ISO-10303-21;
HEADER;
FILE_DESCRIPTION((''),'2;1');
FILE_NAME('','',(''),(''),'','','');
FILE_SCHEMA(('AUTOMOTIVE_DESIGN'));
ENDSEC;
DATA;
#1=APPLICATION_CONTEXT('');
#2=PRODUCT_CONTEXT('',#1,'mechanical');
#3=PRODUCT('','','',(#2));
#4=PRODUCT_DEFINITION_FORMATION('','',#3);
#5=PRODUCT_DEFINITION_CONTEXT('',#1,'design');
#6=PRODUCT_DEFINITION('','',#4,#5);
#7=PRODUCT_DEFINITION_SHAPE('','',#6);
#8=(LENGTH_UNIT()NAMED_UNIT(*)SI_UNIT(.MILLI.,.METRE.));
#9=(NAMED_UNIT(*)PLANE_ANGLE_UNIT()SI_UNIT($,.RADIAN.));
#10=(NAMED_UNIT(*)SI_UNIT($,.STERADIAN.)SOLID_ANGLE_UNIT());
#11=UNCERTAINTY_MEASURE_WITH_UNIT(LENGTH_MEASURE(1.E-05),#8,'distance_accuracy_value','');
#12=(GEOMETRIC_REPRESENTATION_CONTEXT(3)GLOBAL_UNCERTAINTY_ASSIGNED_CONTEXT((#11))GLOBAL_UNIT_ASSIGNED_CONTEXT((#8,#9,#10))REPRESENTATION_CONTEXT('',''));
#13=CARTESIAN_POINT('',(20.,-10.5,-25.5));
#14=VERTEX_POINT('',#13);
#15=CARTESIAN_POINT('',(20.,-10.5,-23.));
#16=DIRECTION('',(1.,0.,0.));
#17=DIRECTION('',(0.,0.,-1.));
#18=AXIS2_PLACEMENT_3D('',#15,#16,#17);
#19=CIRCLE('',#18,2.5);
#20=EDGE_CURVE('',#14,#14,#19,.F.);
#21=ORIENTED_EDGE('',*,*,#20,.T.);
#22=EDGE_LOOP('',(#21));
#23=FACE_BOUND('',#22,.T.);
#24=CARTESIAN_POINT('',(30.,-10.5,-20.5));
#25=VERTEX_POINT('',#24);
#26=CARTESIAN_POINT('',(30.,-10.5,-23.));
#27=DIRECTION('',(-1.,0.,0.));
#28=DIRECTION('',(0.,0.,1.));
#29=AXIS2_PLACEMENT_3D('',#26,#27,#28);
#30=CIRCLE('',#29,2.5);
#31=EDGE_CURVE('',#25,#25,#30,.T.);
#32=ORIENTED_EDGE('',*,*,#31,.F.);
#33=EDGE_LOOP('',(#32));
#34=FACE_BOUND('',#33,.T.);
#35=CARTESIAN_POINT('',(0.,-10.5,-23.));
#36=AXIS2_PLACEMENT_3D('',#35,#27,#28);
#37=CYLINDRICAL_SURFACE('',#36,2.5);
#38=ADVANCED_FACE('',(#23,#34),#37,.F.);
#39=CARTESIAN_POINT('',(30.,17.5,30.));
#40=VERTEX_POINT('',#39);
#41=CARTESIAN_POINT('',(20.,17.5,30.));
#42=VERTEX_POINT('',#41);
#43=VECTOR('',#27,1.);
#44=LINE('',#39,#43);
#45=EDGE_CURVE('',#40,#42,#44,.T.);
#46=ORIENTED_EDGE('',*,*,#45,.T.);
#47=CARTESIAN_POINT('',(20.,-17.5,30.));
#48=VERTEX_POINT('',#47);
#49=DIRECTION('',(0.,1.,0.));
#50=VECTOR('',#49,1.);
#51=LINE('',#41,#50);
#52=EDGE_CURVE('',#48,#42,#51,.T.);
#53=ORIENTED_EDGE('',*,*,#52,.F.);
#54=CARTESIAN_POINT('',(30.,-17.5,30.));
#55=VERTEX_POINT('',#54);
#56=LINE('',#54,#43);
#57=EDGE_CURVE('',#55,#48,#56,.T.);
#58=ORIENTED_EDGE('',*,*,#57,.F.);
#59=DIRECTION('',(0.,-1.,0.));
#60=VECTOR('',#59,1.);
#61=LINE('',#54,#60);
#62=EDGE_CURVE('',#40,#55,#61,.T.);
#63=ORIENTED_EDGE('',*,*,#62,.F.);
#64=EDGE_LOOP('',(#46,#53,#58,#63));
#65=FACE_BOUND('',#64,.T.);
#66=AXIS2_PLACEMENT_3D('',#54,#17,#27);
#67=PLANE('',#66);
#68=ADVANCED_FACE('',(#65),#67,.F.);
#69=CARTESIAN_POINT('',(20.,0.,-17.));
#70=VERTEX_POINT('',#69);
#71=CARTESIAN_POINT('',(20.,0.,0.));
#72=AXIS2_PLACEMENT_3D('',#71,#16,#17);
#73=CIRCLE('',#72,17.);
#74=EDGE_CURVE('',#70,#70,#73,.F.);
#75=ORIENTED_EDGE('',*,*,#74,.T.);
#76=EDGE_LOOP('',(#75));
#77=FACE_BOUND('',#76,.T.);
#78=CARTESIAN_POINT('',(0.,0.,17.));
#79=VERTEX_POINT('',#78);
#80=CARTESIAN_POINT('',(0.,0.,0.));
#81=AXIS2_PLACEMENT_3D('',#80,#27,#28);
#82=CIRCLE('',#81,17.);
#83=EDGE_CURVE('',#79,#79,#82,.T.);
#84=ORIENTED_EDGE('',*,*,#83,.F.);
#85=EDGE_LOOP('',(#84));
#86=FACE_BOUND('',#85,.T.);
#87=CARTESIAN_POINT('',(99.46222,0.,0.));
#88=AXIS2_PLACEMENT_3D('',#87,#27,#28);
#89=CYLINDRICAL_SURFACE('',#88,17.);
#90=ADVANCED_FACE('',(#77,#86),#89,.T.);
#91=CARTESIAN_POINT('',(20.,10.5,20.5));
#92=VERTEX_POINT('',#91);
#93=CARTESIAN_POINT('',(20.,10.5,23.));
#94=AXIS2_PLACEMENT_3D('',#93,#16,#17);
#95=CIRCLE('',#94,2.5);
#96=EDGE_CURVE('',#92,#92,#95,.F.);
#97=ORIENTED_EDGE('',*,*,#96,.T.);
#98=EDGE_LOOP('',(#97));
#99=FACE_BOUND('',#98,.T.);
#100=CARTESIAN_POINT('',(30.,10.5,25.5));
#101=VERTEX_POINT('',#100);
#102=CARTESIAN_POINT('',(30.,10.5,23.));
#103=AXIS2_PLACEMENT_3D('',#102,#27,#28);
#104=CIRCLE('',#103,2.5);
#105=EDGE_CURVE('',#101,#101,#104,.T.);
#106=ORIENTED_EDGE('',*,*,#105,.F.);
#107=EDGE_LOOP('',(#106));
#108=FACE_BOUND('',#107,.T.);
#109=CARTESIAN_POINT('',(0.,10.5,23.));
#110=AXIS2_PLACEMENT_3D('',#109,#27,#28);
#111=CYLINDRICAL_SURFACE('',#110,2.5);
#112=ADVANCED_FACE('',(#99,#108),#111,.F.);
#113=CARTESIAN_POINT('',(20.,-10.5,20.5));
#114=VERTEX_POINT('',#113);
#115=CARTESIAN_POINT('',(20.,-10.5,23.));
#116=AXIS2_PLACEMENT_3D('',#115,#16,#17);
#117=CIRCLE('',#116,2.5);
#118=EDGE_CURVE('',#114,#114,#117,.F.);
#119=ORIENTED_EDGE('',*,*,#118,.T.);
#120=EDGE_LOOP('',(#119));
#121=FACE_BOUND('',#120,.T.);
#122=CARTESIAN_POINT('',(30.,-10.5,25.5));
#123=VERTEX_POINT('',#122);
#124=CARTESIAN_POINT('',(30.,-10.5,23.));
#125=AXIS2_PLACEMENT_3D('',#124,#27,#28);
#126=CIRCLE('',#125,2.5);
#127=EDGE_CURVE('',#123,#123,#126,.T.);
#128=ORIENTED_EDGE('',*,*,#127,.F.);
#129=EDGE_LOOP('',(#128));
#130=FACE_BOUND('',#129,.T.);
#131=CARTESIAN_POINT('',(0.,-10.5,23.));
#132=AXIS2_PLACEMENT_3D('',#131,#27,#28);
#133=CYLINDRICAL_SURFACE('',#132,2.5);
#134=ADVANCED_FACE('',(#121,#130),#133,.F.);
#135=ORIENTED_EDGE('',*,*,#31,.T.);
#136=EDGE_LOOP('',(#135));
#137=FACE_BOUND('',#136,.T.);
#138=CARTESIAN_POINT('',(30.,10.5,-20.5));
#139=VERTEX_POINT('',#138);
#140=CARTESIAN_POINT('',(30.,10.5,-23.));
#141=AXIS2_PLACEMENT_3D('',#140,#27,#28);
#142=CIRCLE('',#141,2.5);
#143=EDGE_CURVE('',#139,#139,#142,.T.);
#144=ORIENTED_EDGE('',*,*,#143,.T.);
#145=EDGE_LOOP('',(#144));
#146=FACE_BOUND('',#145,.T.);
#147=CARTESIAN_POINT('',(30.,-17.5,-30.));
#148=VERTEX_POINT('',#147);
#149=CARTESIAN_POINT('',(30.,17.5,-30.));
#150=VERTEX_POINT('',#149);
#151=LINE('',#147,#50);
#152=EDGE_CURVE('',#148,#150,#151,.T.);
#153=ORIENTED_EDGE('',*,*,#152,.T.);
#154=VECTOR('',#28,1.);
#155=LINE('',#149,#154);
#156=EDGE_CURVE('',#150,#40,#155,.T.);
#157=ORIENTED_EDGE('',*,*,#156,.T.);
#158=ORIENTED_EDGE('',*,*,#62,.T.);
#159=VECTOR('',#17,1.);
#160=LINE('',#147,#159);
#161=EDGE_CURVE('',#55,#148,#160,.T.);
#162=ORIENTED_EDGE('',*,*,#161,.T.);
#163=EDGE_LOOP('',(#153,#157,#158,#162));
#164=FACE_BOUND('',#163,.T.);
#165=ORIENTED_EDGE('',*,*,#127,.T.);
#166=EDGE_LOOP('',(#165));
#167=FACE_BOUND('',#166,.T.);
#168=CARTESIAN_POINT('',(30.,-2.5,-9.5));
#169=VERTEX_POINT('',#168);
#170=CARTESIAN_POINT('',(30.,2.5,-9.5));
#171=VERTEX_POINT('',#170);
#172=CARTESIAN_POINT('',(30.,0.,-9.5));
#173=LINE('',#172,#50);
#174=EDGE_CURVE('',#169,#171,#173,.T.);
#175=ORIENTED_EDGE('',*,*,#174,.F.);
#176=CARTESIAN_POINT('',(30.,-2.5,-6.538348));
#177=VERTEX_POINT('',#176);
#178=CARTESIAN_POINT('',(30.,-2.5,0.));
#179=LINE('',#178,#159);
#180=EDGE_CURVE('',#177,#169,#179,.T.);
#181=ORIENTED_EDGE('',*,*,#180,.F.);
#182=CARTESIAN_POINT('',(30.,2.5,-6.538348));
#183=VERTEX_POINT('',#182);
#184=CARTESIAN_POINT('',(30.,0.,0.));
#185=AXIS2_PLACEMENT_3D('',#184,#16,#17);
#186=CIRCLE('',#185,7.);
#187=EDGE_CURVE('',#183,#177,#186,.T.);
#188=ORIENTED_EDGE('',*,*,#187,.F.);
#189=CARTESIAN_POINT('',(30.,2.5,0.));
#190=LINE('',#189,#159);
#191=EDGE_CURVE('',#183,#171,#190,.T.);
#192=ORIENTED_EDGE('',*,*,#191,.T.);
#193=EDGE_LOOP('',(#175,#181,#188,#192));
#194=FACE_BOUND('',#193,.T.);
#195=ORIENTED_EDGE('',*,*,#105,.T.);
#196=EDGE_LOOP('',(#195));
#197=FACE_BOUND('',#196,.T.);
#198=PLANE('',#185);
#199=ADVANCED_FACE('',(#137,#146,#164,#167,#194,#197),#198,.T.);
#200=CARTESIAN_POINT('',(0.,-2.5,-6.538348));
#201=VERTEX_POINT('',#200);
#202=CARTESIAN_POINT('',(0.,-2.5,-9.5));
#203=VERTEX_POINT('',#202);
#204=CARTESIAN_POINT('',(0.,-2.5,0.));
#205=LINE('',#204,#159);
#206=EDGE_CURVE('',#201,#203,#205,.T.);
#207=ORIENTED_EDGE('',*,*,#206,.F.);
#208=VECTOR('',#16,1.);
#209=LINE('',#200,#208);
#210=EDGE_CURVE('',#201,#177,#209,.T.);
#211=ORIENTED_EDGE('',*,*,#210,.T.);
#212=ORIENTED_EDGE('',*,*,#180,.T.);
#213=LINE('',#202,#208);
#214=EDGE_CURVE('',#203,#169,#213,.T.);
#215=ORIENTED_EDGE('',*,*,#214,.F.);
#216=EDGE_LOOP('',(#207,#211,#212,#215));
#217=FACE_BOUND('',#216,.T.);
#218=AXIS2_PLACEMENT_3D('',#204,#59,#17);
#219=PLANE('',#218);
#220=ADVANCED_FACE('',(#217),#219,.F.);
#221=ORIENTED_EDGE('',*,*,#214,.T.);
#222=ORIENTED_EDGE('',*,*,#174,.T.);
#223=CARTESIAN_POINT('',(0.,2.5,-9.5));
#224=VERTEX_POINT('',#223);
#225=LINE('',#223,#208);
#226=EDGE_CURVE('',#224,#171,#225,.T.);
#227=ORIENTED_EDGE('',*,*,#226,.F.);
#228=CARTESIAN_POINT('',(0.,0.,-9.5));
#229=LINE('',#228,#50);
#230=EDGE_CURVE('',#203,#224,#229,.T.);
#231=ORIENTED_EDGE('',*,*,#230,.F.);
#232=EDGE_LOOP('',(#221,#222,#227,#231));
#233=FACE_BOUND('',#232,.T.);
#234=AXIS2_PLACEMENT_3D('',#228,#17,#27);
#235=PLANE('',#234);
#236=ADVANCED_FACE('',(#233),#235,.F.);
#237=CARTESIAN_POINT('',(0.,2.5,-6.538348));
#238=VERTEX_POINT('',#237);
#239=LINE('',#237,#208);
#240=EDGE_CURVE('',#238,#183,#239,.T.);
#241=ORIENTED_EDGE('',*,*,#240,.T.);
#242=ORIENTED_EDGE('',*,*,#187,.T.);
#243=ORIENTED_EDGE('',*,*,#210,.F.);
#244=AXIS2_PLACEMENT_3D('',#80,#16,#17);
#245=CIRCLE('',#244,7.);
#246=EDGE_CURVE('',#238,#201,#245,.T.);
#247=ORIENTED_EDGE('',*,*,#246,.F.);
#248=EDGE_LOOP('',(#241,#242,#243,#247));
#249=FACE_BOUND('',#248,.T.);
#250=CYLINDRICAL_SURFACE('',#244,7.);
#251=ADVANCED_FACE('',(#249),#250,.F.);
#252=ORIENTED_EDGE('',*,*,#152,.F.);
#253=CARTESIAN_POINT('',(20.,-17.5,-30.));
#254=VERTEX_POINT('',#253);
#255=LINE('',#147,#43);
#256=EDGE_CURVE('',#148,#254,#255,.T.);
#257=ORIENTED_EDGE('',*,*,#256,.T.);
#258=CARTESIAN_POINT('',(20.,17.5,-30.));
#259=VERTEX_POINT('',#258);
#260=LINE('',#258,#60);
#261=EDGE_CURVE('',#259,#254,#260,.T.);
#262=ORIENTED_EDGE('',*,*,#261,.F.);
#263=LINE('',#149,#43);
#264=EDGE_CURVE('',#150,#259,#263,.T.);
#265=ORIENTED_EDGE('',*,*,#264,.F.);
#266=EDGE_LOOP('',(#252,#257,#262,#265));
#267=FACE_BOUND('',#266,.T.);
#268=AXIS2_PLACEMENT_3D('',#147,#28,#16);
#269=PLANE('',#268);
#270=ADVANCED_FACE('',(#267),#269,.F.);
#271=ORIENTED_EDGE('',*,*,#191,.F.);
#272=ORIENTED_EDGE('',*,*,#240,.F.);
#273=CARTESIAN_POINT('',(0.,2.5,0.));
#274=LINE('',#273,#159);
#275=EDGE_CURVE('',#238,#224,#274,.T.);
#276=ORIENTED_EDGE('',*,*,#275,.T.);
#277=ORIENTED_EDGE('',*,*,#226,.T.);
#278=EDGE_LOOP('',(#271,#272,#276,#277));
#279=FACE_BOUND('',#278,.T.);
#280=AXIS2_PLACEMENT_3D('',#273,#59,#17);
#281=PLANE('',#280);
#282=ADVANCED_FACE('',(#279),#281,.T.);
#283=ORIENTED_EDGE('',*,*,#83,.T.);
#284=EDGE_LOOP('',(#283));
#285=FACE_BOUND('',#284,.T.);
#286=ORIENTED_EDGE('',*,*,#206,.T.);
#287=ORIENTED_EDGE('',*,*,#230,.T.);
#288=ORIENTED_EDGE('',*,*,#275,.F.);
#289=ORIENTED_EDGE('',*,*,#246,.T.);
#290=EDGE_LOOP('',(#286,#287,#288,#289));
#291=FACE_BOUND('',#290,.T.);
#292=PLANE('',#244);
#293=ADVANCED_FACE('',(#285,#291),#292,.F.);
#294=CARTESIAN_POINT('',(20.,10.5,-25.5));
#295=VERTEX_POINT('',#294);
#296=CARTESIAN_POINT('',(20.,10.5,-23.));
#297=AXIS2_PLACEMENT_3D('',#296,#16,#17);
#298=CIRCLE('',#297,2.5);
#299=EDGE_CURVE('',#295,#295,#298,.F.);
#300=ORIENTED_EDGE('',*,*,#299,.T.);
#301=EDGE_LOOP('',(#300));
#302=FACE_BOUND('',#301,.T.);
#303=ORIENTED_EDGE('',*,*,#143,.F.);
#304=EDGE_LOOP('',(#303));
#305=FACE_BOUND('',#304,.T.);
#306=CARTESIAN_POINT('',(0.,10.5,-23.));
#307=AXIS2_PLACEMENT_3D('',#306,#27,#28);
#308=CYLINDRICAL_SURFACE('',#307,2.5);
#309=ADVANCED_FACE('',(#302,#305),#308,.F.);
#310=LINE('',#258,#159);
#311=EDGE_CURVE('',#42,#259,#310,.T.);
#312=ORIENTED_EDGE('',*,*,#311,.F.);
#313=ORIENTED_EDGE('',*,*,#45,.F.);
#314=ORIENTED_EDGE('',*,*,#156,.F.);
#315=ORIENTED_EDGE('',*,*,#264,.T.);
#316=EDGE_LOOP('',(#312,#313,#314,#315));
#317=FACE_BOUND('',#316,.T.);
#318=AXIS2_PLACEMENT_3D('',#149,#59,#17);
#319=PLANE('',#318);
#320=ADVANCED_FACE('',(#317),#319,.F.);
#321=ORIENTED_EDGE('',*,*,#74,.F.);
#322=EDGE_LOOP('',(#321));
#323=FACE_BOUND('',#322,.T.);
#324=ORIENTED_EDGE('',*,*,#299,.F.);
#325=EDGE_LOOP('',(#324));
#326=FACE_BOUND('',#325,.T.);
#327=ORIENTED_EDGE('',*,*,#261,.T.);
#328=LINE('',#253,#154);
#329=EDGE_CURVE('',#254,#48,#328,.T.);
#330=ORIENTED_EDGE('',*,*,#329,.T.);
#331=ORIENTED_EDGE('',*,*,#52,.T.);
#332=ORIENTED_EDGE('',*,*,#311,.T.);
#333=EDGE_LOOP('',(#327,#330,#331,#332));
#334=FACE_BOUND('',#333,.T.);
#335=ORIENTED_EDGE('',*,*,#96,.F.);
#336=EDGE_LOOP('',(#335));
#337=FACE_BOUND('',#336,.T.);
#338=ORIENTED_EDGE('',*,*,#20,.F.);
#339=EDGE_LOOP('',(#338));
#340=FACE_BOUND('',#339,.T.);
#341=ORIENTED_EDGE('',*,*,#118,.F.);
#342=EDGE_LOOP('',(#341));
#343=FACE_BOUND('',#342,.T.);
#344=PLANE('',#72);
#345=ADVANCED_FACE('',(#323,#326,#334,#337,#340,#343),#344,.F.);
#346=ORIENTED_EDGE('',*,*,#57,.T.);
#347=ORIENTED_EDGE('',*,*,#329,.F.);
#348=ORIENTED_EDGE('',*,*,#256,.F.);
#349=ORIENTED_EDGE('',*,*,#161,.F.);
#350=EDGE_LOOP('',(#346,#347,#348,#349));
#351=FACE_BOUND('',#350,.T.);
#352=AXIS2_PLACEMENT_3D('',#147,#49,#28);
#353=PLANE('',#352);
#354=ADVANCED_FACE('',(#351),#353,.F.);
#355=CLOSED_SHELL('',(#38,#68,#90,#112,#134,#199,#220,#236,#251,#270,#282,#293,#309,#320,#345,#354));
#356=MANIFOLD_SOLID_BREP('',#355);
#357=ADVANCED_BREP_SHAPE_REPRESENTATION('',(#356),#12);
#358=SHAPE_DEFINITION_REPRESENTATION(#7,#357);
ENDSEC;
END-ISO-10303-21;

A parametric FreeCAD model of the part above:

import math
import FreeCAD as App
import Part
import Sketcher
from FreeCAD import Vector
Q = App.Units.Quantity


def add_polygon(sketch, points):
    """Adds a closed chain of lines whose ends are joined by coincident constraints."""
    first, n = sketch.GeometryCount, len(points)
    for a, b in zip(points, points[1:] + points[:1]):
        sketch.addGeometry(Part.LineSegment(App.Vector(*a, 0), App.Vector(*b, 0)), False)
    for i in range(n):
        sketch.addConstraint(Sketcher.Constraint("Coincident", first + i, 2, first + (i + 1) % n, 1))

doc = App.newDocument("Part")
body = doc.addObject("PartDesign::Body", "Body")

# Sketch on YZ plane
sketch1 = doc.addObject("Sketcher::SketchObject", "Sketch")
body.addObject(sketch1)
sketch1.AttachmentSupport = (doc.YZ_Plane, [""])
sketch1.MapMode = "FlatFace"
add_polygon(sketch1, [(18, 30), (-18, 30), (-18, -30), (18, -30)])  # lines 0-3
sketch1.addConstraint(Sketcher.Constraint("Horizontal", 0))
sketch1.addConstraint(Sketcher.Constraint("Vertical", 1))
sketch1.addConstraint(Sketcher.Constraint("Horizontal", 2))
sketch1.addConstraint(Sketcher.Constraint("Vertical", 3))
sketch1.addConstraint(Sketcher.Constraint("Symmetric", 0, 2, 2, 2, -1, 1))
sketch1.addConstraint(Sketcher.Constraint("DistanceX", 0, 2, 0, 1, Q("35 mm")))
sketch1.addConstraint(Sketcher.Constraint("DistanceY", 1, 2, 1, 1, Q("60 mm")))
pad1 = doc.addObject("PartDesign::Pad", "Pad")
body.addObject(pad1)
pad1.Profile = sketch1
pad1.Length = 30

# Sketch on YZ plane
sketch2 = doc.addObject("Sketcher::SketchObject", "Sketch001")
body.addObject(sketch2)
sketch2.AttachmentSupport = (doc.YZ_Plane, [""])
sketch2.MapMode = "FlatFace"
sketch2.AttachmentOffset = App.Placement(Vector(0, 0, 30), App.Rotation())
sketch2.addGeometry(Part.ArcOfCircle(Part.Circle(Vector(0, 0, 0), Vector(0, 0, 1), 7), math.radians(-69), math.radians(249)), False)
sketch2.addGeometry(Part.LineSegment(Vector(-2.5, -6.5, 0), Vector(-2.5, -9.5, 0)), False)
sketch2.addGeometry(Part.LineSegment(Vector(-2.5, -9.5, 0), Vector(2.5, -9.5, 0)), False)
sketch2.addGeometry(Part.LineSegment(Vector(2.5, -9.5, 0), Vector(2.5, -6.5, 0)), False)
sketch2.addConstraint(Sketcher.Constraint("Coincident", 0, 2, 1, 1))
sketch2.addConstraint(Sketcher.Constraint("Coincident", 1, 2, 2, 1))
sketch2.addConstraint(Sketcher.Constraint("Coincident", 2, 2, 3, 1))
sketch2.addConstraint(Sketcher.Constraint("Coincident", 3, 2, 0, 1))
sketch2.addConstraint(Sketcher.Constraint("Vertical", 1))
sketch2.addConstraint(Sketcher.Constraint("Horizontal", 2))
sketch2.addConstraint(Sketcher.Constraint("Vertical", 3))
sketch2.addConstraint(Sketcher.Constraint("Coincident", 0, 3, -1, 1))
sketch2.addConstraint(Sketcher.Constraint("Horizontal", 0, 2, 3, 2))
sketch2.addConstraint(Sketcher.Constraint("Radius", 0, Q("7 mm")))
sketch2.addConstraint(Sketcher.Constraint("DistanceX", 2, 1, 2, 2, Q("5 mm")))
sketch2.addConstraint(Sketcher.Constraint("DistanceY", 1, 2, -1, 1, Q("9.5 mm")))
pocket1 = doc.addObject("PartDesign::Pocket", "Pocket")
body.addObject(pocket1)
pocket1.Profile = sketch2
pocket1.Type = "ThroughAll"

# Sketch on YZ plane
sketch3 = doc.addObject("Sketcher::SketchObject", "Sketch002")
body.addObject(sketch3)
sketch3.AttachmentSupport = (doc.YZ_Plane, [""])
sketch3.MapMode = "FlatFace"
sketch3.addGeometry(Part.Circle(Vector(10.5, -23, 0), Vector(0, 0, 1), 2.5), False)
sketch3.addGeometry(Part.Circle(Vector(-10.5, -23, 0), Vector(0, 0, 1), 2.5), False)
sketch3.addConstraint(Sketcher.Constraint("Equal", 0, 1))
sketch3.addConstraint(Sketcher.Constraint("Symmetric", 0, 3, 1, 3, -2))
sketch3.addConstraint(Sketcher.Constraint("Diameter", 0, Q("5 mm")))
sketch3.addConstraint(Sketcher.Constraint("DistanceY", 0, 3, -1, 1, Q("23 mm")))
sketch3.addConstraint(Sketcher.Constraint("DistanceX", 1, 3, 0, 3, Q("21 mm")))
doc.recompute()
hole = doc.addObject("PartDesign::Hole", "Hole")
body.addObject(hole)
hole.Profile = sketch3
hole.ThreadType = "None"
hole.Diameter = 5
hole.DepthType = "ThroughAll"
hole.Reversed = True
doc.recompute()

mirrored = doc.addObject("PartDesign::Mirrored", "Mirrored")
body.addObject(mirrored)
mirrored.Originals = [hole]
mirrored.MirrorPlane = (doc.XY_Plane, [""])
body.Tip = mirrored

# Sketch on YZ plane
sketch4 = doc.addObject("Sketcher::SketchObject", "Sketch003")
body.addObject(sketch4)
sketch4.AttachmentSupport = (doc.YZ_Plane, [""])
sketch4.MapMode = "FlatFace"
add_polygon(sketch4, [(18, -30), (-18, -30), (-18, 30), (18, 30)])  # lines 0-3
sketch4.addGeometry(Part.Circle(Vector(0, 0, 0), Vector(0, 0, 1), 17), False)  # 4
sketch4.addConstraint(Sketcher.Constraint("Horizontal", 0))
sketch4.addConstraint(Sketcher.Constraint("Vertical", 1))
sketch4.addConstraint(Sketcher.Constraint("Horizontal", 2))
sketch4.addConstraint(Sketcher.Constraint("Vertical", 3))
sketch4.addConstraint(Sketcher.Constraint("Coincident", 4, 3, -1, 1))
sketch4.addConstraint(Sketcher.Constraint("Symmetric", 0, 2, 2, 2, -1, 1))
sketch4.addConstraint(Sketcher.Constraint("Diameter", 4, Q("34 mm")))
sketch4.addConstraint(Sketcher.Constraint("DistanceX", 0, 2, 0, 1, Q("35 mm")))
sketch4.addConstraint(Sketcher.Constraint("DistanceY", 1, 1, 1, 2, Q("60 mm")))
pocket2 = doc.addObject("PartDesign::Pocket", "Pocket001")
body.addObject(pocket2)
pocket2.Profile = sketch4
pocket2.Length = 20
pocket2.Reversed = True

doc.recompute()
